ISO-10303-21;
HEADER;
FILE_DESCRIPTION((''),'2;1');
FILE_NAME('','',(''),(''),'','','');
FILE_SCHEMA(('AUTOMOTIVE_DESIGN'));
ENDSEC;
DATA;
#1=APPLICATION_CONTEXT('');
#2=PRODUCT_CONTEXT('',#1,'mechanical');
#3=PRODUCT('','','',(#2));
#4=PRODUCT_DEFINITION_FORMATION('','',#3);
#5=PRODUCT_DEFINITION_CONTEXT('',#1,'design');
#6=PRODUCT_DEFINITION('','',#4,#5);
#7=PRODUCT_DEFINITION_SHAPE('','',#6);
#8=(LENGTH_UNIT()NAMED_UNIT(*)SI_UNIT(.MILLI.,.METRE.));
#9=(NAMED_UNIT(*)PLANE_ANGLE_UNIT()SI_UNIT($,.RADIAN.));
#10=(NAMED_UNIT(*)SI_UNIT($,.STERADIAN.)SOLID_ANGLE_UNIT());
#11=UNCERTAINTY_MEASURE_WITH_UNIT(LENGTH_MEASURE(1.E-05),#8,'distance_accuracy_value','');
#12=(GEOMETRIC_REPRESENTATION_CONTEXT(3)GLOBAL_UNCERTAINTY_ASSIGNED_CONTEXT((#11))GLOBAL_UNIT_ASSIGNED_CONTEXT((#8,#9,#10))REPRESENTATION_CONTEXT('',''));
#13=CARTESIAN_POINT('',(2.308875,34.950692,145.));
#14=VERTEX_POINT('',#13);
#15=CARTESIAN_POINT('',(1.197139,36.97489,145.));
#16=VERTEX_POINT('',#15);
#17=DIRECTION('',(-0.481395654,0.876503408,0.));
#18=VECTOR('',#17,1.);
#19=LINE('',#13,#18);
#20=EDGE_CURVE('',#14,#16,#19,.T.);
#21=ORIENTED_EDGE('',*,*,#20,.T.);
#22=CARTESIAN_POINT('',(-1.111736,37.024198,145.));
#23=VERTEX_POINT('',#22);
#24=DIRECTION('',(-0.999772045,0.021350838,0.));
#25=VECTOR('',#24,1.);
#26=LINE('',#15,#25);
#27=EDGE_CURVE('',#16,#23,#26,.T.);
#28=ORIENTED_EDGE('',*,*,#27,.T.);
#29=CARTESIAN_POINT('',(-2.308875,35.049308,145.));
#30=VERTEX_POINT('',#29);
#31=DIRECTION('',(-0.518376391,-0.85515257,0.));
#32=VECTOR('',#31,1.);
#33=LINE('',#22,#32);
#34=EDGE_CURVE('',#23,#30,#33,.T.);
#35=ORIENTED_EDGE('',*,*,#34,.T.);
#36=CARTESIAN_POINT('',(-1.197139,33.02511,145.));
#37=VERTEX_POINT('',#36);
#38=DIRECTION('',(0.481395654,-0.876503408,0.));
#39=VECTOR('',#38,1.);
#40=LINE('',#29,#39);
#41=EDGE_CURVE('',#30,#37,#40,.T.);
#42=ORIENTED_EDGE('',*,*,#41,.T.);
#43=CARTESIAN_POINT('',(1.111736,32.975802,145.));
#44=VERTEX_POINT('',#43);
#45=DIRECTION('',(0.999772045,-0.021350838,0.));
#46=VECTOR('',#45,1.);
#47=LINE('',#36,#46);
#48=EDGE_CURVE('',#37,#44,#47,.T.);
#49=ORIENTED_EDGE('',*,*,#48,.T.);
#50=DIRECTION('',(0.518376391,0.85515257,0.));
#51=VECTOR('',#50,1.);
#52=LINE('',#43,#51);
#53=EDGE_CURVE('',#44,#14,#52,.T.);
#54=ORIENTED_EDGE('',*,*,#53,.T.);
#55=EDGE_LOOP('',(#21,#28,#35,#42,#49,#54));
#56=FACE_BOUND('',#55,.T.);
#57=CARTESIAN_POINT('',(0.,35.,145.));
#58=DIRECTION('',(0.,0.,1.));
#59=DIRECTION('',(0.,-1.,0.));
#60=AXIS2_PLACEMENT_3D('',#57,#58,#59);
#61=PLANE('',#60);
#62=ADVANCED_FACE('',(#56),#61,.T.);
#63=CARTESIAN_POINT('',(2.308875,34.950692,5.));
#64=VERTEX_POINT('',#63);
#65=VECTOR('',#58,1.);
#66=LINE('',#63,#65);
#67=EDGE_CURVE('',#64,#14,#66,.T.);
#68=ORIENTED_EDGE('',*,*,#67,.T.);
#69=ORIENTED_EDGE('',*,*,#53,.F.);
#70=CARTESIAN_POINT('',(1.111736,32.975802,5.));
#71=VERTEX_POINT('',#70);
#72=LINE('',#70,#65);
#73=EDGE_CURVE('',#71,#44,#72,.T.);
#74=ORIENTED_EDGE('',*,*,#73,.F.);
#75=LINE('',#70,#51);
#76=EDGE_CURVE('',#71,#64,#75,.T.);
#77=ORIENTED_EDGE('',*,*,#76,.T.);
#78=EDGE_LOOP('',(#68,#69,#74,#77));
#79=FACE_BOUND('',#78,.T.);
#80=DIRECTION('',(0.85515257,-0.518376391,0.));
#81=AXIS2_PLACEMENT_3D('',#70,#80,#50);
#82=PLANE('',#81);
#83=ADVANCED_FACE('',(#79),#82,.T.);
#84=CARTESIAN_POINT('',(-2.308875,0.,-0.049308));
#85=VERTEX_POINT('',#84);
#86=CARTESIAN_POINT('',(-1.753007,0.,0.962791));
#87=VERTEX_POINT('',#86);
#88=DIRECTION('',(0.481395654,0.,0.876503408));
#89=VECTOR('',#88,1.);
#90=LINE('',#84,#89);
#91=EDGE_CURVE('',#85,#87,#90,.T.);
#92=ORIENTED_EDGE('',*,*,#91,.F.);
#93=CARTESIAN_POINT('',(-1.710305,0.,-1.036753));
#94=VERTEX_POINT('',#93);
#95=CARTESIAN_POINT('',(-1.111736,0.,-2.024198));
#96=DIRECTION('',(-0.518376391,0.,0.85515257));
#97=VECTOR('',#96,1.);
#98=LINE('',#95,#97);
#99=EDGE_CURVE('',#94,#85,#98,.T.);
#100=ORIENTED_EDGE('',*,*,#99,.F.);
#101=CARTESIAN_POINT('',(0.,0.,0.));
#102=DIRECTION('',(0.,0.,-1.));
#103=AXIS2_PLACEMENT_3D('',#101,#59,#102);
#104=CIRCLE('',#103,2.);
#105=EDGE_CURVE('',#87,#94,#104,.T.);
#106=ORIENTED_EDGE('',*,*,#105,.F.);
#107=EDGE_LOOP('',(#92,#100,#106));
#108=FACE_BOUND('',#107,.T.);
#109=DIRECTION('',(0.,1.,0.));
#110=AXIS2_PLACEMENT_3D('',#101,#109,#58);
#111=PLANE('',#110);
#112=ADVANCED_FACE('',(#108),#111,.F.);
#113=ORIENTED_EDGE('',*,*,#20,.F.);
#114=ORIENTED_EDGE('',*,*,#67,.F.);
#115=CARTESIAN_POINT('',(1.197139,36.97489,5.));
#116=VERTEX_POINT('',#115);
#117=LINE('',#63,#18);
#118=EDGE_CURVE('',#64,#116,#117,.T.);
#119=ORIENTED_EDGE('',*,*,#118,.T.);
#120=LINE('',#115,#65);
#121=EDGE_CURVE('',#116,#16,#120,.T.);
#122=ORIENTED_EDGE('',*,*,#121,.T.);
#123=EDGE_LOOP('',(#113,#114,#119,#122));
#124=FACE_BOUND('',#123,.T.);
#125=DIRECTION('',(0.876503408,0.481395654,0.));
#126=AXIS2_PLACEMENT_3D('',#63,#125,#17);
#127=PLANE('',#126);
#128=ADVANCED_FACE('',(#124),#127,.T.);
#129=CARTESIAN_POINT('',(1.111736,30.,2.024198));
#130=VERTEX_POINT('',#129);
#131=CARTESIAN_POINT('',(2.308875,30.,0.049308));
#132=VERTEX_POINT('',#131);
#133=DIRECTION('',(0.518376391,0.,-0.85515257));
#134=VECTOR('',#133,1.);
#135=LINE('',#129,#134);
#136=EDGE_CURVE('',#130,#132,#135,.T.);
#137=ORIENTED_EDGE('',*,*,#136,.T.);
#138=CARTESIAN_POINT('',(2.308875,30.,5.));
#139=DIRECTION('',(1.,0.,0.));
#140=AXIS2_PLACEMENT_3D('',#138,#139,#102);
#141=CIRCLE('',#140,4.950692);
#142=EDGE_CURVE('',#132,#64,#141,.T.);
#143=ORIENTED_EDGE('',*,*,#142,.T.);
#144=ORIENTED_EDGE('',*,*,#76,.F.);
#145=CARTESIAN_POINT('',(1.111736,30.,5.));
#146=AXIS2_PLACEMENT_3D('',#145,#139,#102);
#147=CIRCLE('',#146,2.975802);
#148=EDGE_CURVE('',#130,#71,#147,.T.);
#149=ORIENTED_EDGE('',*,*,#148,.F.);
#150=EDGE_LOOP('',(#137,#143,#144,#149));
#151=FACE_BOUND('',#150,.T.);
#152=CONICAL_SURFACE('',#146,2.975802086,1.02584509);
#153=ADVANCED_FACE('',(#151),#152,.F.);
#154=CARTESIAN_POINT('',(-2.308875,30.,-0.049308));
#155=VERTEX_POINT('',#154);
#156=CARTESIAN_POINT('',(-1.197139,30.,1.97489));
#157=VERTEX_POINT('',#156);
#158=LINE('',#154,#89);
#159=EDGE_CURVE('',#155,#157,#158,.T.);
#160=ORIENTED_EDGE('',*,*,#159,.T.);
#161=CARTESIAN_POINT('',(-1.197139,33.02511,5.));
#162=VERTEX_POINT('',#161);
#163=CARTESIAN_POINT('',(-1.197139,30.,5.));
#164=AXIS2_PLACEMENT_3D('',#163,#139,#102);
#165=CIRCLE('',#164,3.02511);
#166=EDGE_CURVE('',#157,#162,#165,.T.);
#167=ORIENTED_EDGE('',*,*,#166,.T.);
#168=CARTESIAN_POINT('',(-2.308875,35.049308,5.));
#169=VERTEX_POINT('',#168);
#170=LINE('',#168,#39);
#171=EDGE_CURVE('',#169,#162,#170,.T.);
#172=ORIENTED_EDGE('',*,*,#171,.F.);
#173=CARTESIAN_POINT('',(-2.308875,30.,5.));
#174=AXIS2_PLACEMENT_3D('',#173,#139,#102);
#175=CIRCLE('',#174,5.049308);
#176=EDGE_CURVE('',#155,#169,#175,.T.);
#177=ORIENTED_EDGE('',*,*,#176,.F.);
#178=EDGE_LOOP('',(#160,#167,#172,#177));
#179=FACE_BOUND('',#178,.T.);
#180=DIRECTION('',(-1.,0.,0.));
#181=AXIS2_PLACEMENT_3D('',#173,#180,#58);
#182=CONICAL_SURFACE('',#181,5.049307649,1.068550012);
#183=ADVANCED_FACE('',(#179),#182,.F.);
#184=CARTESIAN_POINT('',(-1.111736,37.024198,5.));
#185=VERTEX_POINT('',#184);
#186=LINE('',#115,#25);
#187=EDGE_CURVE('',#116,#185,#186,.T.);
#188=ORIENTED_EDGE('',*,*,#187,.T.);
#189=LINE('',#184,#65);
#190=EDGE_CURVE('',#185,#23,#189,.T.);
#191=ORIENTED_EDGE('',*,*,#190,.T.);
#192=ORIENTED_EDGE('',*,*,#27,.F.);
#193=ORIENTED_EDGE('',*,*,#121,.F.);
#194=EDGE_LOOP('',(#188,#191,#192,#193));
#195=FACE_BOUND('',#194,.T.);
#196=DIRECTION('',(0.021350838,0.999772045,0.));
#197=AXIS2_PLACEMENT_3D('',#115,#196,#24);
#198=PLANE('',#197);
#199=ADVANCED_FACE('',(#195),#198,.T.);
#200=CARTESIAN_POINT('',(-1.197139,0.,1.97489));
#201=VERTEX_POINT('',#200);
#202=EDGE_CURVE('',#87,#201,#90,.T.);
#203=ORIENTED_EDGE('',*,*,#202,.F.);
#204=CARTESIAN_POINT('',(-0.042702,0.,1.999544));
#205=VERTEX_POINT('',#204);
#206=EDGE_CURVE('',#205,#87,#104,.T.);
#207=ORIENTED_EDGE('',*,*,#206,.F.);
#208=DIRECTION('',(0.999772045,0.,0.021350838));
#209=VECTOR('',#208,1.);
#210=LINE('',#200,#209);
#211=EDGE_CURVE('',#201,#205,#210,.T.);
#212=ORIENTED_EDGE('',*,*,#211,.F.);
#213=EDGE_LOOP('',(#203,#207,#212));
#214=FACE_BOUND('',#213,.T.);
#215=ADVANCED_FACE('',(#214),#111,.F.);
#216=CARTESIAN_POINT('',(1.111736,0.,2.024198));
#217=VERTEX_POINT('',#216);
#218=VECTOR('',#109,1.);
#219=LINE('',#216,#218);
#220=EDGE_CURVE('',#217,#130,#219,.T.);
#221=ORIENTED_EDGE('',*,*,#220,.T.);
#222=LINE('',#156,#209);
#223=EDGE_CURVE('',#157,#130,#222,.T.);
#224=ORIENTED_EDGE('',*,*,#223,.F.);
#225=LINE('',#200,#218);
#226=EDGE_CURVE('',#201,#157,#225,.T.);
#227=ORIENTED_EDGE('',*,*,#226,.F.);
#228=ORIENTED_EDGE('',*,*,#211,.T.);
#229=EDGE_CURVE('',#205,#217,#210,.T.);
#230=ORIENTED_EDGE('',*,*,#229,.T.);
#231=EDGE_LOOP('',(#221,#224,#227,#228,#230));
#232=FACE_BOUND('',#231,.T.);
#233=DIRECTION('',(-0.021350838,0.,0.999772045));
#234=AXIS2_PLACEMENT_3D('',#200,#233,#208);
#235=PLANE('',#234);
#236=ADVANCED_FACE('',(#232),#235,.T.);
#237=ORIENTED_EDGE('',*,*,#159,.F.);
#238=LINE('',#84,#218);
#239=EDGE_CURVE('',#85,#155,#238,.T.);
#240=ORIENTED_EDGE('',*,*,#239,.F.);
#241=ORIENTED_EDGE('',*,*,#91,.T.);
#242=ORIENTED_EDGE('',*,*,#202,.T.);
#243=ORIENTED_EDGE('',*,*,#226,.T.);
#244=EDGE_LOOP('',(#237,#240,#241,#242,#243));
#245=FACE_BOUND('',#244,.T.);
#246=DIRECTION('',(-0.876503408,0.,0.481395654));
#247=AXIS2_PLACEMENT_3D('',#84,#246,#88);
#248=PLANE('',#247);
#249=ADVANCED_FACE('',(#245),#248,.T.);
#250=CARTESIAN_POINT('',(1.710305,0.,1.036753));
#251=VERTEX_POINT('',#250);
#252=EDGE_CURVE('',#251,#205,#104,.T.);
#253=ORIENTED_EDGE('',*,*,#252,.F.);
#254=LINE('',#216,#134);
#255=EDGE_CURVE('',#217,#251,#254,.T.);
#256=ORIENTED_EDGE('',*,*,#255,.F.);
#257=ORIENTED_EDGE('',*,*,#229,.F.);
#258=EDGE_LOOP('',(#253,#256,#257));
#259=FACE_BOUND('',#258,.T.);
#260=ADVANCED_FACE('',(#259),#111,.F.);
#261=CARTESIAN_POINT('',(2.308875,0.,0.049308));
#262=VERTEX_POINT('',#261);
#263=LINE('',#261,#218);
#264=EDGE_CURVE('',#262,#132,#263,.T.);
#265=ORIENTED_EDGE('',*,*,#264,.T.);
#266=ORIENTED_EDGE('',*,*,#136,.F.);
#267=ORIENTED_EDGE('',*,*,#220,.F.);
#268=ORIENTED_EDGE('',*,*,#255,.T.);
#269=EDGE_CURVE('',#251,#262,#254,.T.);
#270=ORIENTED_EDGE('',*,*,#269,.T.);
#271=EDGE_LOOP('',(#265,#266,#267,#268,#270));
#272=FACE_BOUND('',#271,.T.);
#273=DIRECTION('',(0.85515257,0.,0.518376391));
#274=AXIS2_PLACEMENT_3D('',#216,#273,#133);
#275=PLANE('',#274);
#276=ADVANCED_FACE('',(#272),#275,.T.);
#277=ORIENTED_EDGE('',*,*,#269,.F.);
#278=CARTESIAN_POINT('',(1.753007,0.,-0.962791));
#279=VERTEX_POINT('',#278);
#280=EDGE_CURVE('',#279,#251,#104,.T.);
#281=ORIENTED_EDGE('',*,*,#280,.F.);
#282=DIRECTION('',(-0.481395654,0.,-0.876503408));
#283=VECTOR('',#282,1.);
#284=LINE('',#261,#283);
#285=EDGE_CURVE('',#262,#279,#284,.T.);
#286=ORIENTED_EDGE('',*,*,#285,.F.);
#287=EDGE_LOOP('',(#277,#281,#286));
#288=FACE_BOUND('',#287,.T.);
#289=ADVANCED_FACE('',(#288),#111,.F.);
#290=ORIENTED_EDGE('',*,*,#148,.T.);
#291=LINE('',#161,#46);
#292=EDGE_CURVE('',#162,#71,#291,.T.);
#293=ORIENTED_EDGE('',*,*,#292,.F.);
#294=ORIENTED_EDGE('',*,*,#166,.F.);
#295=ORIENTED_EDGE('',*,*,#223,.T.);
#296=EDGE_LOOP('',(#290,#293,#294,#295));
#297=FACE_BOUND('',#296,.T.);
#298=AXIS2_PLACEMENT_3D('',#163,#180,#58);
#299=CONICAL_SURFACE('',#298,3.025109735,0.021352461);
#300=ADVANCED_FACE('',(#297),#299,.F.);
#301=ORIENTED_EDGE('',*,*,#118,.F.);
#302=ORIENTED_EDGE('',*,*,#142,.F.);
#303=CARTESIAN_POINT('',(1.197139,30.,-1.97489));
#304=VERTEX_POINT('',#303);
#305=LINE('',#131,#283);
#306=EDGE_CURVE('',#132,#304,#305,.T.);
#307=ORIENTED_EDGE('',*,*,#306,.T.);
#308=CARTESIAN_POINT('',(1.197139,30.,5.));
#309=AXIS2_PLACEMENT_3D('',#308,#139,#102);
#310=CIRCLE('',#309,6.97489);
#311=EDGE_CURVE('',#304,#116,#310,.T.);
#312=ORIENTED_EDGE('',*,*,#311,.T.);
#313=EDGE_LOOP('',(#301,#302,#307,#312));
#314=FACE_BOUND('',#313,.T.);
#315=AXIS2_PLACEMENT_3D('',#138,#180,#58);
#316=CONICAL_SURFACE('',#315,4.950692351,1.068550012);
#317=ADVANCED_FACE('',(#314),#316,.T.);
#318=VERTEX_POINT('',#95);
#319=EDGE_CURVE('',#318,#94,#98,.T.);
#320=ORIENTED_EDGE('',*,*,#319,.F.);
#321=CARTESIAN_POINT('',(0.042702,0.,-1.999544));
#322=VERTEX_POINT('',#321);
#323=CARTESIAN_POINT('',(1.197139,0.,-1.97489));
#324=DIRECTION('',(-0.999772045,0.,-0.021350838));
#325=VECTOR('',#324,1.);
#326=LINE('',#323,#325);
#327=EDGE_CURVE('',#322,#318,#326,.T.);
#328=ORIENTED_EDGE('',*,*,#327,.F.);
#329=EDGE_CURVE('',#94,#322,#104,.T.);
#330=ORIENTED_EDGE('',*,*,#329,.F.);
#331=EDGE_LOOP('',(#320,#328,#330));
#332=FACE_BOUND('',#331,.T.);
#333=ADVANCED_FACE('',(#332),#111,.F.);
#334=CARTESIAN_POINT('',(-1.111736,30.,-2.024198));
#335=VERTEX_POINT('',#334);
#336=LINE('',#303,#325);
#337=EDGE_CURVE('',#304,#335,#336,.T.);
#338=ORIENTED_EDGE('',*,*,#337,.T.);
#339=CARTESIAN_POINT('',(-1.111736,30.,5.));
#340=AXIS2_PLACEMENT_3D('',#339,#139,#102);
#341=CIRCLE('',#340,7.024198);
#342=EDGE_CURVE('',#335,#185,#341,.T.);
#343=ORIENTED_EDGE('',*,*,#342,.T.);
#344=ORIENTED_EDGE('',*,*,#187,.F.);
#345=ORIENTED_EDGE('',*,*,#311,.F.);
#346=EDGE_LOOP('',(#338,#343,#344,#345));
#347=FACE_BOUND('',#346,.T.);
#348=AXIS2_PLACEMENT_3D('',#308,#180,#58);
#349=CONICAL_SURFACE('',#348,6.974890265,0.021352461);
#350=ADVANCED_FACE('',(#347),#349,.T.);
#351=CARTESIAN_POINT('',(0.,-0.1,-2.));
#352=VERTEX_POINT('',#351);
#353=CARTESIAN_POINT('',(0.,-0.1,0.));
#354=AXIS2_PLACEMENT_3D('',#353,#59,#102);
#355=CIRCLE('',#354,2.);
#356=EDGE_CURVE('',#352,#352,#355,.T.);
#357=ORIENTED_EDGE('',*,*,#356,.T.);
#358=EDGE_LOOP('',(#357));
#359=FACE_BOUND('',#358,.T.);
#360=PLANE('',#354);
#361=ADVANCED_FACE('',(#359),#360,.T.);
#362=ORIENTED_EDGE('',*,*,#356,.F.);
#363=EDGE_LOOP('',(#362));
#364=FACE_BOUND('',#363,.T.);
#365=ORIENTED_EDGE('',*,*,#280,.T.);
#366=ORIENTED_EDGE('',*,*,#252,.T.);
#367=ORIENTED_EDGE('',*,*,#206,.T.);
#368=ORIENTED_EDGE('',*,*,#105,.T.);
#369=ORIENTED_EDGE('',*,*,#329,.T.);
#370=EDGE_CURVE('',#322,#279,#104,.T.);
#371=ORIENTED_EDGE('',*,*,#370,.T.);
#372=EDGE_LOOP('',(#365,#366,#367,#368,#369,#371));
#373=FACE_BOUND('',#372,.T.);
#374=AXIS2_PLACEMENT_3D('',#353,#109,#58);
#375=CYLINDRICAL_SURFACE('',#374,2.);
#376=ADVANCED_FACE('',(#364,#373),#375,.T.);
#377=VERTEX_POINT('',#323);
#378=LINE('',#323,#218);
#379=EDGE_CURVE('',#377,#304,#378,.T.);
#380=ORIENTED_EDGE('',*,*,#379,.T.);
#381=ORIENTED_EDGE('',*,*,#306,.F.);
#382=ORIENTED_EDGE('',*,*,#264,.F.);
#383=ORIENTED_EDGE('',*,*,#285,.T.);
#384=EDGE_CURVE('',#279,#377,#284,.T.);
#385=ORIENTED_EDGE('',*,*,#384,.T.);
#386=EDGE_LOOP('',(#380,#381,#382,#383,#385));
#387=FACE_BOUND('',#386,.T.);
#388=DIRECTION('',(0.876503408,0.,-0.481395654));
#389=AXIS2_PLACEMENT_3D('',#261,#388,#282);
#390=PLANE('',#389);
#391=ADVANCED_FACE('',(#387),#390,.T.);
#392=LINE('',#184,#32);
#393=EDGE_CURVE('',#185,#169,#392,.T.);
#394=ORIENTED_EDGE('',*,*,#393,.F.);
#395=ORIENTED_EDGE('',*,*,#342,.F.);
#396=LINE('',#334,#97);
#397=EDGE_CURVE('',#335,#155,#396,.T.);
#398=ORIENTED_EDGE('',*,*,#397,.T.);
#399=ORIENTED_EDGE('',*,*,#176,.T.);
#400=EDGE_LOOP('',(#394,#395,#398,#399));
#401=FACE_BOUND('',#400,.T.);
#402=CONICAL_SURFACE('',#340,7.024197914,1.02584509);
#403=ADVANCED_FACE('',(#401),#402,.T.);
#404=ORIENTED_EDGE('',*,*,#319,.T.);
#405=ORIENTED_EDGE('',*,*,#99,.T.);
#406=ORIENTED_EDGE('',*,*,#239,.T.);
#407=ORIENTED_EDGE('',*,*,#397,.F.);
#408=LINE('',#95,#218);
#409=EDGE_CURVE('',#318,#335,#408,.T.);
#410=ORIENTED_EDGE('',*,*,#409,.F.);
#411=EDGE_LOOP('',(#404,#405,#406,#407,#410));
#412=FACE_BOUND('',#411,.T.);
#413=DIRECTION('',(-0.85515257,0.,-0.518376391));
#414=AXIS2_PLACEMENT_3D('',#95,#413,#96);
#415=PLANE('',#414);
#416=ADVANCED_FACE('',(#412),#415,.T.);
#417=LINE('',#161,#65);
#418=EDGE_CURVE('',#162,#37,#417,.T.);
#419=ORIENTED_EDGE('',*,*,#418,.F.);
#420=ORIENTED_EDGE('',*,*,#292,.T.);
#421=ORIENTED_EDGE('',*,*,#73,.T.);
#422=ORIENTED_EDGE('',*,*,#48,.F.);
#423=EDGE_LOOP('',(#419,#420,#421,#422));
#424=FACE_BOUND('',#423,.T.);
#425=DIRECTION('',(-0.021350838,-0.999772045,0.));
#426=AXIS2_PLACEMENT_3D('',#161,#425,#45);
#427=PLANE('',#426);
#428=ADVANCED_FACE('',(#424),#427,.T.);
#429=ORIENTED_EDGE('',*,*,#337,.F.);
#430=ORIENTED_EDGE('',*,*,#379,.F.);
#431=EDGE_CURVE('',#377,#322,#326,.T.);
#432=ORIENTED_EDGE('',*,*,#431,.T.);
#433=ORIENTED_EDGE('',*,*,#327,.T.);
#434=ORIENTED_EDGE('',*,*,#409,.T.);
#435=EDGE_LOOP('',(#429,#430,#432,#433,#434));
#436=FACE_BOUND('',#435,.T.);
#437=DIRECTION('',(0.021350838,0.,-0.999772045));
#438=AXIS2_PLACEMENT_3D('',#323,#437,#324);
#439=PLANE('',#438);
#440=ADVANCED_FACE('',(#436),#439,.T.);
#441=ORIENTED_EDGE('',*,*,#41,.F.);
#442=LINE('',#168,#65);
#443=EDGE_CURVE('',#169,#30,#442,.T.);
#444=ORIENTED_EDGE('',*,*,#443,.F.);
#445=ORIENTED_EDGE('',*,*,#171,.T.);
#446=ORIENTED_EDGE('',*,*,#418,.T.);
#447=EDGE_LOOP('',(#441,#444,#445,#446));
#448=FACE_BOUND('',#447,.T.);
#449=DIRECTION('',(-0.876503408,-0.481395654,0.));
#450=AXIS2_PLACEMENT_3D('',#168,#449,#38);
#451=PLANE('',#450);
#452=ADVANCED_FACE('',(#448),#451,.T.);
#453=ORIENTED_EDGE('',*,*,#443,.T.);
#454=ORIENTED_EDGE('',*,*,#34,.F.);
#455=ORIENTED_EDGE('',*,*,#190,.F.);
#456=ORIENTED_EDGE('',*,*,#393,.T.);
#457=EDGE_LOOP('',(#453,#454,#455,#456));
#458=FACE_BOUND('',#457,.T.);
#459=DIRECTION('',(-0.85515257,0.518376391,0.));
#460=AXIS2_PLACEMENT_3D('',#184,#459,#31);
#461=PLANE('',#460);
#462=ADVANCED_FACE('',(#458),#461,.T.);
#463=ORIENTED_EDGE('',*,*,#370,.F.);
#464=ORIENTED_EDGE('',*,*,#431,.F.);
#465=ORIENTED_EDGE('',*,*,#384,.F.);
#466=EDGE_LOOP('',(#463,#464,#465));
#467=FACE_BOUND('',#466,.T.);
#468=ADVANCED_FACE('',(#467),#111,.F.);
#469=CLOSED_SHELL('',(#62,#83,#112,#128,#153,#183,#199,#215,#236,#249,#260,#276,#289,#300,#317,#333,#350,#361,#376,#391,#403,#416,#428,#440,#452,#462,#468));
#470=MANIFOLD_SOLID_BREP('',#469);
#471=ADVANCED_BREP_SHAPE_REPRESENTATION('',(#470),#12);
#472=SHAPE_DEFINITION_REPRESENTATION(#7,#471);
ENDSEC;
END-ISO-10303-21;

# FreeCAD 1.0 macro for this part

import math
import FreeCAD as App
import Part
import Sketcher
from FreeCAD import Vector

doc = App.newDocument("Part")
body = doc.addObject("PartDesign::Body", "Body")

sketch1 = body.newObject("Sketcher::SketchObject", "Sketch")
sketch1.AttachmentSupport = (doc.getObject("XZ_Plane"), [""])
sketch1.MapMode = "FlatFace"
sketch1.addGeometry(Part.LineSegment(Vector(-2.3, 0, 0), Vector(-1.2, 2, 0)), False)
sketch1.addGeometry(Part.LineSegment(Vector(-1.2, 2, 0), Vector(1.1, 2, 0)), False)
sketch1.addGeometry(Part.LineSegment(Vector(1.1, 2, 0), Vector(2.3, 0, 0)), False)
sketch1.addGeometry(Part.LineSegment(Vector(2.3, 0, 0), Vector(1.2, -2, 0)), False)
sketch1.addGeometry(Part.LineSegment(Vector(1.2, -2, 0), Vector(-1.1, -2, 0)), False)
sketch1.addGeometry(Part.LineSegment(Vector(-1.1, -2, 0), Vector(-2.3, 0, 0)), False)
sketch1.addConstraint(Sketcher.Constraint("Coincident", 0, 2, 1, 1))
sketch1.addConstraint(Sketcher.Constraint("Coincident", 1, 2, 2, 1))
sketch1.addConstraint(Sketcher.Constraint("Coincident", 2, 2, 3, 1))
sketch1.addConstraint(Sketcher.Constraint("Coincident", 3, 2, 4, 1))
sketch1.addConstraint(Sketcher.Constraint("Coincident", 4, 2, 5, 1))
sketch1.addConstraint(Sketcher.Constraint("Coincident", 5, 2, 0, 1))
sketch1.addConstraint(Sketcher.Constraint("Symmetric", 0, 2, 3, 2, -1, 1))
sketch1.addConstraint(Sketcher.Constraint("Symmetric", 1, 2, 4, 2, -1, 1))
sketch1.addConstraint(Sketcher.Constraint("Symmetric", 2, 2, 5, 2, -1, 1))
sketch1.addConstraint(Sketcher.Constraint("Equal", 0, 1))
sketch1.addConstraint(Sketcher.Constraint("Equal", 1, 2))
sketch1.addConstraint(Sketcher.Constraint("Distance", 0, 2.309401))
sketch1.addConstraint(Sketcher.Constraint("DistanceX", 0, 2, -1, 1, 1.197139))
sketch1.addConstraint(Sketcher.Constraint("DistanceY", -1, 1, 0, 2, 1.97489))
sketch1.addConstraint(Sketcher.Constraint("DistanceX", 1, 2, 2, 2, 1.197139))

sketch2 = body.newObject("Sketcher::SketchObject", "Sketch001")
sketch2.AttachmentSupport = (doc.getObject("YZ_Plane"), [""])
sketch2.MapMode = "FlatFace"
sketch2.addGeometry(Part.LineSegment(Vector(0, 0, 0), Vector(30, 0, 0)), False)
sketch2.addGeometry(Part.ArcOfCircle(Part.Circle(Vector(30, 5, 0), Vector(0, 0, 1), 5), math.radians(-90), math.radians(0)), False)
sketch2.addGeometry(Part.LineSegment(Vector(35, 5, 0), Vector(35, 145, 0)), False)
sketch2.addConstraint(Sketcher.Constraint("Tangent", 0, 2, 1, 1))
sketch2.addConstraint(Sketcher.Constraint("Tangent", 1, 2, 2, 1))
sketch2.addConstraint(Sketcher.Constraint("Horizontal", 0))
sketch2.addConstraint(Sketcher.Constraint("Vertical", 2))
sketch2.addConstraint(Sketcher.Constraint("Coincident", 0, 1, -1, 1))
sketch2.addConstraint(Sketcher.Constraint("Radius", 1, 5.0))
sketch2.addConstraint(Sketcher.Constraint("DistanceX", 0, 1, 0, 2, 30.0))
sketch2.addConstraint(Sketcher.Constraint("DistanceY", 2, 1, 2, 2, 140.0))
doc.recompute()

additivepipe = body.newObject("PartDesign::AdditivePipe", "AdditivePipe")
additivepipe.Profile = sketch1
additivepipe.Spine = (sketch2, ["Edge1", "Edge2", "Edge3"])

sketch3 = body.newObject("Sketcher::SketchObject", "Sketch002")
sketch3.AttachmentSupport = (doc.getObject("XZ_Plane"), [""])
sketch3.MapMode = "FlatFace"
sketch3.addGeometry(Part.Circle(Vector(0, 0, 0), Vector(0, 0, 1), 2), False)
sketch3.addConstraint(Sketcher.Constraint("Coincident", 0, 3, -1, 1))
sketch3.addConstraint(Sketcher.Constraint("Diameter", 0, 4.0))
pad1 = body.newObject("PartDesign::Pad", "Pad")
pad1.Profile = sketch3
pad1.Length = 0.1

doc.recompute()
